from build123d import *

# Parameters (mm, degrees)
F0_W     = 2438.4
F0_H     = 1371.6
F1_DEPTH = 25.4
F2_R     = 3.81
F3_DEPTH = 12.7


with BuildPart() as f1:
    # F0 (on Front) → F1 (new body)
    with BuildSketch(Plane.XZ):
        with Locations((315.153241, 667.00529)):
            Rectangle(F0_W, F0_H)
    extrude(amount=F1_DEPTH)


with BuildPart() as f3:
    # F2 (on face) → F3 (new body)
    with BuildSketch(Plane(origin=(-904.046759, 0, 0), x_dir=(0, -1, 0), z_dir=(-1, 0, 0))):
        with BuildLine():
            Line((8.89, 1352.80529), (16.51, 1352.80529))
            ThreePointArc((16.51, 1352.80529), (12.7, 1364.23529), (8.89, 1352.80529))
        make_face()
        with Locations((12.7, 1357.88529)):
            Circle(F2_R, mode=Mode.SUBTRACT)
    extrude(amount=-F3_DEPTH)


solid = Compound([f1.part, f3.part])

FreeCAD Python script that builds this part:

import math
import FreeCAD as App
import Part
import Sketcher
from FreeCAD import Vector
Q = App.Units.Quantity

doc = App.newDocument("Part")
body = doc.addObject("PartDesign::Body", "Body")

# Sketch on XZ plane
sketch1 = doc.addObject("Sketcher::SketchObject", "Sketch")
body.addObject(sketch1)
sketch1.AttachmentSupport = (doc.XZ_Plane, [""])
sketch1.MapMode = "FlatFace"
sketch1.addGeometry(Part.LineSegment(Vector(-904, 1353, 0), Vector(-904, -19, 0)), False)
sketch1.addGeometry(Part.LineSegment(Vector(-904, -19, 0), Vector(1534, -19, 0)), False)
sketch1.addGeometry(Part.LineSegment(Vector(1534, -19, 0), Vector(1534, 1353, 0)), False)
sketch1.addGeometry(Part.LineSegment(Vector(1534, 1353, 0), Vector(-904, 1353, 0)), False)
sketch1.addConstraint(Sketcher.Constraint("Coincident", 0, 2, 1, 1))
sketch1.addConstraint(Sketcher.Constraint("Coincident", 1, 2, 2, 1))
sketch1.addConstraint(Sketcher.Constraint("Coincident", 2, 2, 3, 1))
sketch1.addConstraint(Sketcher.Constraint("Coincident", 3, 2, 0, 1))
sketch1.addConstraint(Sketcher.Constraint("Vertical", 0))
sketch1.addConstraint(Sketcher.Constraint("Horizontal", 1))
sketch1.addConstraint(Sketcher.Constraint("Vertical", 2))
sketch1.addConstraint(Sketcher.Constraint("Horizontal", 3))
sketch1.addConstraint(Sketcher.Constraint("DistanceX", 1, 1, 1, 2, Q("96 in")))
sketch1.addConstraint(Sketcher.Constraint("DistanceY", 0, 2, 0, 1, Q("54 in")))
sketch1.addConstraint(Sketcher.Constraint("DistanceX", 0, 2, -1, 1, Q("904.046759 mm")))
sketch1.addConstraint(Sketcher.Constraint("DistanceY", 0, 2, -1, 1, Q("18.79471 mm")))
pad1 = doc.addObject("PartDesign::Pad", "Pad")
body.addObject(pad1)
pad1.Profile = sketch1
pad1.Length = Q("1 in")
body2 = doc.addObject("PartDesign::Body", "Body001")

# Sketch on YZ plane
sketch2 = doc.addObject("Sketcher::SketchObject", "Sketch001")
body2.addObject(sketch2)
sketch2.AttachmentSupport = (doc.getObject("YZ_Plane001"), [""])
sketch2.MapMode = "FlatFace"
sketch2.AttachmentOffset = App.Placement(Vector(0, 0, -904.046759), App.Rotation())
sketch2.addGeometry(Part.LineSegment(Vector(-8.89, 1352.80529, 0), Vector(-16.51, 1352.80529, 0)), False)
sketch2.addGeometry(Part.ArcOfCircle(Part.Circle(Vector(-12.7, 1357.88529, 0), Vector(0, 0, 1), 6.35), math.radians(-53.130102), math.radians(233.130102)), False)
sketch2.addGeometry(Part.Circle(Vector(-12.7, 1357.88529, 0), Vector(0, 0, 1), 3.81), False)
sketch2.addConstraint(Sketcher.Constraint("Coincident", 0, 1, 1, 1))
sketch2.addConstraint(Sketcher.Constraint("Coincident", 1, 2, 0, 2))
sketch2.addConstraint(Sketcher.Constraint("Horizontal", 0))
sketch2.addConstraint(Sketcher.Constraint("Coincident", 2, 3, 1, 3))
sketch2.addConstraint(Sketcher.Constraint("Diameter", 2, Q("0.3 in")))
sketch2.addConstraint(Sketcher.Constraint("Radius", 1, Q("0.25 in")))
sketch2.addConstraint(Sketcher.Constraint("DistanceX", 0, 2, 0, 1, Q("0.3 in")))
sketch2.addConstraint(Sketcher.Constraint("DistanceX", 1, 3, -1, 1, Q("0.5 in")))
sketch2.addConstraint(Sketcher.Constraint("DistanceY", -1, 1, 1, 3, Q("1357.88529 mm")))
pad2 = doc.addObject("PartDesign::Pad", "Pad001")
body2.addObject(pad2)
pad2.Profile = sketch2
pad2.Length = Q("0.5 in")

doc.recompute()
